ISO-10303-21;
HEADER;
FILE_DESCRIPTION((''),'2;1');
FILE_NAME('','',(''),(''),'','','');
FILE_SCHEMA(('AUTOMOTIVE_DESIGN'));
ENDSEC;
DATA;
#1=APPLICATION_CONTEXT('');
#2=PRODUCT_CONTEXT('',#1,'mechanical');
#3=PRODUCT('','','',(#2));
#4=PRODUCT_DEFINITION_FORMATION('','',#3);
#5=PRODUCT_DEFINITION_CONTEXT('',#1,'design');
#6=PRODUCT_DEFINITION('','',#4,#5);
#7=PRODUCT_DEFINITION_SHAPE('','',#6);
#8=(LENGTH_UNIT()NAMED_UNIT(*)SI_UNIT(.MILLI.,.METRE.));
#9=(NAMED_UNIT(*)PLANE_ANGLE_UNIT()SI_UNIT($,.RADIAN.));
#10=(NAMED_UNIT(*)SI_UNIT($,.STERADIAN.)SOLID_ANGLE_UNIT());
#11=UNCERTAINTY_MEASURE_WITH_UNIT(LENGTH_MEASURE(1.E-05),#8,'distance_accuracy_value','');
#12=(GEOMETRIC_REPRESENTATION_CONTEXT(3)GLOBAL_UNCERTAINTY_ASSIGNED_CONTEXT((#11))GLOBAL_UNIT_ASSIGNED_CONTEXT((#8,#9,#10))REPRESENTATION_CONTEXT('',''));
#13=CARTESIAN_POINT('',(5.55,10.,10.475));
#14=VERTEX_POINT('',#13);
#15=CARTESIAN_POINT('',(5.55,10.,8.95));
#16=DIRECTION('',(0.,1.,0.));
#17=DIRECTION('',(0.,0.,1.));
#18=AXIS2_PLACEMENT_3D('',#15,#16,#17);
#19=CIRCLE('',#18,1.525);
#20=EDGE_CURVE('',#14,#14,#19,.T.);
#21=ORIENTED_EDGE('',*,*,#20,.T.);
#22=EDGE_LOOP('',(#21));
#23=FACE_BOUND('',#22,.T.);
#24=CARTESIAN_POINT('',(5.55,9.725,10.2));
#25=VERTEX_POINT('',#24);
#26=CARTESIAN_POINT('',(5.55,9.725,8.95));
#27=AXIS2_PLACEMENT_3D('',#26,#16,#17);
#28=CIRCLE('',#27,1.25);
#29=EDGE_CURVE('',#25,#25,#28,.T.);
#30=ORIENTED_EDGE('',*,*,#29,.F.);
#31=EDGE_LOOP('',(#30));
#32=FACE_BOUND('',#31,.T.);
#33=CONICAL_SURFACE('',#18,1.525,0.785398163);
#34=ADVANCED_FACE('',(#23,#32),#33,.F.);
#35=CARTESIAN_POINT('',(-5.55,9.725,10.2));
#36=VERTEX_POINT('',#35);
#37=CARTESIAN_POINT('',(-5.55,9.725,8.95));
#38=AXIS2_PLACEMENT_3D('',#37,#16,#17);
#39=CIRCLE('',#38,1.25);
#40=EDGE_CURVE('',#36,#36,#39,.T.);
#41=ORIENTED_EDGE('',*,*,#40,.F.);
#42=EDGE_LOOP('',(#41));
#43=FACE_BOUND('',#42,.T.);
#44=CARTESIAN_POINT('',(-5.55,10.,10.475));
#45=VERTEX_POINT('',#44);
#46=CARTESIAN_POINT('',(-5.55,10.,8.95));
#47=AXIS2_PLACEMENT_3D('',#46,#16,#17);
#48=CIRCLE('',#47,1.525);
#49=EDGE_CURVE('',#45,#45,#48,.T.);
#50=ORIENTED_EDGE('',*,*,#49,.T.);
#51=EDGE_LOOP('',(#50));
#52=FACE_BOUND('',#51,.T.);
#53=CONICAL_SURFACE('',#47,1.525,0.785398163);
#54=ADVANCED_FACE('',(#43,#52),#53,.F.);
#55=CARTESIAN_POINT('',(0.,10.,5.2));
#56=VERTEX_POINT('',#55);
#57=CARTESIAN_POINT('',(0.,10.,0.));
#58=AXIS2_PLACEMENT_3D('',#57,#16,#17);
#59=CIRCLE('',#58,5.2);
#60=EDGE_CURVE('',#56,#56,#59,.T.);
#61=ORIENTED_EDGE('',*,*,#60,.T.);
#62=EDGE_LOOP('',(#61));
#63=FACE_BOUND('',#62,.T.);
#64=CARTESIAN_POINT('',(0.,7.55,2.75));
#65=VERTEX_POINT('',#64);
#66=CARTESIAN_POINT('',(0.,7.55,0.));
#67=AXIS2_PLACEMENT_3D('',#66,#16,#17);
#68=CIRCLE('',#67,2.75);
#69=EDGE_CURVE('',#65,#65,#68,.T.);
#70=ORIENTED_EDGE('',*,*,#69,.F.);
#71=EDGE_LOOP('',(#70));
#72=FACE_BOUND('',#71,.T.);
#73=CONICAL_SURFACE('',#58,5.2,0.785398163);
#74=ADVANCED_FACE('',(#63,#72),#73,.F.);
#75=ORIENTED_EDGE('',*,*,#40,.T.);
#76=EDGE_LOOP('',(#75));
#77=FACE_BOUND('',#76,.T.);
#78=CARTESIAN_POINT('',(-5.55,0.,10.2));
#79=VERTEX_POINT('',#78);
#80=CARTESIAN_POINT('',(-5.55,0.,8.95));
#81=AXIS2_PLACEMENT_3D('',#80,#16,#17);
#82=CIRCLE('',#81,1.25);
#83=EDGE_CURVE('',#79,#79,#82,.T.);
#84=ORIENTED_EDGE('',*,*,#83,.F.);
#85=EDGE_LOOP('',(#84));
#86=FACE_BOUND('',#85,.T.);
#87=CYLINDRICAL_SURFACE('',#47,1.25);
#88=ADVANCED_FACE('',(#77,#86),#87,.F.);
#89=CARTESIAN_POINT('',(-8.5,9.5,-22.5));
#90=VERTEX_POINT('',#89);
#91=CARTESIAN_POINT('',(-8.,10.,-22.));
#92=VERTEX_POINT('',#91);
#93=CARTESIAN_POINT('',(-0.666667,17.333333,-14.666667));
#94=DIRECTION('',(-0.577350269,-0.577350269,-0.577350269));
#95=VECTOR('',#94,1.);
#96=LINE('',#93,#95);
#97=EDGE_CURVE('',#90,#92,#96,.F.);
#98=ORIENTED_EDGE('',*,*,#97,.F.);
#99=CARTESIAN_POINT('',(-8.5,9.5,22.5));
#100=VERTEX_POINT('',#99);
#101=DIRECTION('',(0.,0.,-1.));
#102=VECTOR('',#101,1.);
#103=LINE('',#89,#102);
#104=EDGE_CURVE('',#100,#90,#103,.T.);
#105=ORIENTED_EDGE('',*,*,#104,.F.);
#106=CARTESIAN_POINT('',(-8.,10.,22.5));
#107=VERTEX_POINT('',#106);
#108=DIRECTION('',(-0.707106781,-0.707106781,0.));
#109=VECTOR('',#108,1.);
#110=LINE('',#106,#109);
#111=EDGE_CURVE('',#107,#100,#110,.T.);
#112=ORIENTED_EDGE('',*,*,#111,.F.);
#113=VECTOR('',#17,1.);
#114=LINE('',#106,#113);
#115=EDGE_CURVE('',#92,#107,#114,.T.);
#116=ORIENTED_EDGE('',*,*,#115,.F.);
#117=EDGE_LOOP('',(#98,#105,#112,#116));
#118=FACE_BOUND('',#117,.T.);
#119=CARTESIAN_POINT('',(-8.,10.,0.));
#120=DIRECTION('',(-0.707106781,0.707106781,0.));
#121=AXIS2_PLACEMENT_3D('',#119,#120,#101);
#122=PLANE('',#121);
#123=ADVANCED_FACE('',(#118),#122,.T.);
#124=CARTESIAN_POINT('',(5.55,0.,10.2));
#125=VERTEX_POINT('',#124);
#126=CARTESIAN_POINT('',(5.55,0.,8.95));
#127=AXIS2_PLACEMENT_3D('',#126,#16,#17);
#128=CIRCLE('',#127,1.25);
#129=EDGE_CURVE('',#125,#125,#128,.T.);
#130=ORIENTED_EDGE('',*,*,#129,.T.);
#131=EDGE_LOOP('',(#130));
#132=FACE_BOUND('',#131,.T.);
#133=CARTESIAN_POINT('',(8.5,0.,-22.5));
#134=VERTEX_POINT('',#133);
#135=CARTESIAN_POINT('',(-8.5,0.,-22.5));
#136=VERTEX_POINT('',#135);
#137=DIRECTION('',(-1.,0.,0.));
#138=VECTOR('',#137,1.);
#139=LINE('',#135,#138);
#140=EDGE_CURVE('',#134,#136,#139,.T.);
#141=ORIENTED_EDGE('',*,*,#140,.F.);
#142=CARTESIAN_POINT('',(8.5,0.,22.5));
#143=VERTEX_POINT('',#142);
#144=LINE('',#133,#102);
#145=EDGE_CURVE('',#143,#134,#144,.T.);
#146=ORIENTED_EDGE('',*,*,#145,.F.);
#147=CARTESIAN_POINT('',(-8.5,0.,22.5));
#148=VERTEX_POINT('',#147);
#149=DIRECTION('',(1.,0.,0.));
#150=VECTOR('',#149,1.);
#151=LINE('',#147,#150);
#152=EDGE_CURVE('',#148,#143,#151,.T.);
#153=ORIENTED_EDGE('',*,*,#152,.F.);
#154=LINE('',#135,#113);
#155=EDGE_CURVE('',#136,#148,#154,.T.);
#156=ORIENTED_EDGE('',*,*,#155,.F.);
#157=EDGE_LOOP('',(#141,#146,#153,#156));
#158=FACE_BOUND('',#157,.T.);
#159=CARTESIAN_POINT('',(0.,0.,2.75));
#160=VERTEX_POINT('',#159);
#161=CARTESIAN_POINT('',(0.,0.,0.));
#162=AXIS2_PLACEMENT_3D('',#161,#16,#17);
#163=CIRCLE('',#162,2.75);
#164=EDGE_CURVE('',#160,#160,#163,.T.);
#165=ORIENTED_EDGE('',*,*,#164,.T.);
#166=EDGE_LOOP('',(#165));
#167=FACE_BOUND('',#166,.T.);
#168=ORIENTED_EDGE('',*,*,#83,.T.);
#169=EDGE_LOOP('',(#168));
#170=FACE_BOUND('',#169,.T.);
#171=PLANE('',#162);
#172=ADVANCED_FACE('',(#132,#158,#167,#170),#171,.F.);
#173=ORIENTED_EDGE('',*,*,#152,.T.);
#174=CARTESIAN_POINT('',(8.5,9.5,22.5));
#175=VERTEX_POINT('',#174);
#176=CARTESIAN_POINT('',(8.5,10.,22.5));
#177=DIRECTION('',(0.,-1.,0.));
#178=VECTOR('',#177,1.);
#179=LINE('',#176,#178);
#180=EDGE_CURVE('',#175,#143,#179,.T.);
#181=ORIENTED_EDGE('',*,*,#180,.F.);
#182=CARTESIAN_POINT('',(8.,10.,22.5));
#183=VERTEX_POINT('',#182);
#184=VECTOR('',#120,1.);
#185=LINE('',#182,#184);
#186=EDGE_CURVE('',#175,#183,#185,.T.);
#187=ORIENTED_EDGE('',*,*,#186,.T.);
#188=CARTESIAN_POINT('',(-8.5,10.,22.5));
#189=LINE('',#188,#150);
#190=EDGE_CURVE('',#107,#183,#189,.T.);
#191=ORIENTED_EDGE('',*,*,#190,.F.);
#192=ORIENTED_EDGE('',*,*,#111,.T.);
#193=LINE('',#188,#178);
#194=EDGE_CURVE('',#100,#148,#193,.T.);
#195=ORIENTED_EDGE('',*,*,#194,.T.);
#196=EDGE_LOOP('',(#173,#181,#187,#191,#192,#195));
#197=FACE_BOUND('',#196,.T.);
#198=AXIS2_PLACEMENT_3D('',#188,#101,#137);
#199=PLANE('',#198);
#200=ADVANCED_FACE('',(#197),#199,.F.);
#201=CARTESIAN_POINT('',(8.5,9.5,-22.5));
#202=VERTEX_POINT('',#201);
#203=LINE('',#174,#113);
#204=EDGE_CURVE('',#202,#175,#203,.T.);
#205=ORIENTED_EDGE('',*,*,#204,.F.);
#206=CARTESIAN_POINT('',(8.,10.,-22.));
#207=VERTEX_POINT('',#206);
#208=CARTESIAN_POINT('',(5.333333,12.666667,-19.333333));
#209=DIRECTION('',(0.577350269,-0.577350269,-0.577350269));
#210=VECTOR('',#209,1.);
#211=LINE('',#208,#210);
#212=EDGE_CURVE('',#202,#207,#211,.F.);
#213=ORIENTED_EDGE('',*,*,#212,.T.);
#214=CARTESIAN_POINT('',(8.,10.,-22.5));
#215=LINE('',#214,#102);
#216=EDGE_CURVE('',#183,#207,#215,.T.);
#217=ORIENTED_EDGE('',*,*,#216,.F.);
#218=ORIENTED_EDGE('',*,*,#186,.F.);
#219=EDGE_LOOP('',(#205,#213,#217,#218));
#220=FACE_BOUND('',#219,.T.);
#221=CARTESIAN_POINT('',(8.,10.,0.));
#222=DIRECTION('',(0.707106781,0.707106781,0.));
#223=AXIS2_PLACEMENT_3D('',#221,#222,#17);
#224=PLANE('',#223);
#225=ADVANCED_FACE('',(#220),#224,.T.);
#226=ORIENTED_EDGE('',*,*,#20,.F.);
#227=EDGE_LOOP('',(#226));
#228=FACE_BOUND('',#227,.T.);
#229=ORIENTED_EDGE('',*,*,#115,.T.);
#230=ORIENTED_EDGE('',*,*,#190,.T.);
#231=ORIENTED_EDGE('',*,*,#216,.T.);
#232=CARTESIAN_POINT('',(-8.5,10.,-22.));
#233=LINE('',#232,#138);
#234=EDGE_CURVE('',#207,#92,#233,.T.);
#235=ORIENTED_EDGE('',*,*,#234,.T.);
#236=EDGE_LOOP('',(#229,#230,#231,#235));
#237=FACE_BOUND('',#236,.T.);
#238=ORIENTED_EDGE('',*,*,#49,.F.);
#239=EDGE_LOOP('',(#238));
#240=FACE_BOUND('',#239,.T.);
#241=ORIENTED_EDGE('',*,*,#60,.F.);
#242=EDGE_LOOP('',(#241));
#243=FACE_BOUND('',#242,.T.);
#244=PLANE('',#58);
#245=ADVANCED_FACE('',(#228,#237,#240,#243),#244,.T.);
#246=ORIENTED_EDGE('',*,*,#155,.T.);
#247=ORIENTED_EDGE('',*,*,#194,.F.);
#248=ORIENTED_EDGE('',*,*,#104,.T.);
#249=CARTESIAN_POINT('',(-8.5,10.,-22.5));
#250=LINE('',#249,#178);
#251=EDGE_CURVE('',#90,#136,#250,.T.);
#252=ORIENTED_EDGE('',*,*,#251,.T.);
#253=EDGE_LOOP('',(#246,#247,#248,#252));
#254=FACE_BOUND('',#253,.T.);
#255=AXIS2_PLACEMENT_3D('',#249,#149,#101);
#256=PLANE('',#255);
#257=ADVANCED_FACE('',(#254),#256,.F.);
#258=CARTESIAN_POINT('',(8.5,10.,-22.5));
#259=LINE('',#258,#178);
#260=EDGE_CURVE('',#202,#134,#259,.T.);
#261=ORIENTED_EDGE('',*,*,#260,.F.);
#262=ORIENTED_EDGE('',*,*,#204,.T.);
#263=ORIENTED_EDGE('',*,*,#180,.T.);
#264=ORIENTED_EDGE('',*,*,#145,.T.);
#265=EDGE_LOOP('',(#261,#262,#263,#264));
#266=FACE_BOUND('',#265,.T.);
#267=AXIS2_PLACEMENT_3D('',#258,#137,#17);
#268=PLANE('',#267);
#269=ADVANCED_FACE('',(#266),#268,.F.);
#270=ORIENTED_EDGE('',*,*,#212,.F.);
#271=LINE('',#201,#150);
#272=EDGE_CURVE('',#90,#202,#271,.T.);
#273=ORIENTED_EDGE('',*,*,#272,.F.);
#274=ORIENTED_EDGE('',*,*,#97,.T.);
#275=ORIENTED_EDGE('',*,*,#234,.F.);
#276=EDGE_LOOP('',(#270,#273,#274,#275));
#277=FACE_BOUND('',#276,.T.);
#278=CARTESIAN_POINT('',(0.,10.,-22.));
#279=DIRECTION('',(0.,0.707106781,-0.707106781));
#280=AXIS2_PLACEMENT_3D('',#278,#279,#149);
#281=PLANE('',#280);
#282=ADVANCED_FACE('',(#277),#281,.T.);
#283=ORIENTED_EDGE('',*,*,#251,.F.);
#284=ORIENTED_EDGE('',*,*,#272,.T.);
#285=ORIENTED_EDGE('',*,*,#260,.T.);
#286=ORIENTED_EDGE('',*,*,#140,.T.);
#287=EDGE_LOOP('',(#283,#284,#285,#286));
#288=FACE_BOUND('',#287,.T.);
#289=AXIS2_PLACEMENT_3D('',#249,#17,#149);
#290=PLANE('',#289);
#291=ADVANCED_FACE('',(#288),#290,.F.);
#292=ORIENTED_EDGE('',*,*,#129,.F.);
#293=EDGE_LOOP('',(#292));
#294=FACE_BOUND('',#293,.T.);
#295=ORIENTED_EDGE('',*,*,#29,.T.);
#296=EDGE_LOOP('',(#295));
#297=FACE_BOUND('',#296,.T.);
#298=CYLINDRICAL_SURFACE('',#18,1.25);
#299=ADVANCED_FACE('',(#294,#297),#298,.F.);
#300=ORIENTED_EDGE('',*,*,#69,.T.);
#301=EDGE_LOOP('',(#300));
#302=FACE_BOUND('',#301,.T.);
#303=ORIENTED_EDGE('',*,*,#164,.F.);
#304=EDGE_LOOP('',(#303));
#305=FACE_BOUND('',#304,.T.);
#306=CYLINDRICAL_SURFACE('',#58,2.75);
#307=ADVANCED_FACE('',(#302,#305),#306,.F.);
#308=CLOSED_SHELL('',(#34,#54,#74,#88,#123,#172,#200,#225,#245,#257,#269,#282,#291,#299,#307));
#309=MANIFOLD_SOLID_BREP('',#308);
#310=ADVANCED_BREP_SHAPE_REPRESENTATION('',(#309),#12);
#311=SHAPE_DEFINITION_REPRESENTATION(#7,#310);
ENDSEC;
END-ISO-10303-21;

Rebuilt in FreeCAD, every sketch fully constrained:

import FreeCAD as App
import Part
import Sketcher

V = App.Vector


def edges_at(feature, points):
    """Names of the edges that pass closest to the given points."""
    edges = feature.Shape.Edges
    near = lambda p: min(range(len(edges)), key=lambda i: edges[i].distToShape(Part.Vertex(*p))[0])
    return sorted({f"Edge{near(p) + 1}" for p in points})

doc = App.newDocument("Part")
body = doc.addObject("PartDesign::Body", "Body")

sketch1 = body.newObject("Sketcher::SketchObject", "Sketch")
sketch1.AttachmentSupport = (doc.getObject("XZ_Plane"), [""])
sketch1.MapMode = "FlatFace"
sketch1.addGeometry([
    Part.LineSegment(V(-8.5, -22.5, 0), V(-8.5, 22.5, 0)),
    Part.LineSegment(V(-8.5, 22.5, 0), V(8.5, 22.5, 0)),
    Part.LineSegment(V(8.5, 22.5, 0), V(8.5, -22.5, 0)),
    Part.LineSegment(V(8.5, -22.5, 0), V(-8.5, -22.5, 0)),
], False)
sketch1.addConstraint([
    Sketcher.Constraint("Coincident", 0, 2, 1, 1),
    Sketcher.Constraint("Coincident", 1, 2, 2, 1),
    Sketcher.Constraint("Coincident", 2, 2, 3, 1),
    Sketcher.Constraint("Coincident", 3, 2, 0, 1),
    Sketcher.Constraint("Vertical", 0),
    Sketcher.Constraint("Horizontal", 1),
    Sketcher.Constraint("Vertical", 2),
    Sketcher.Constraint("Horizontal", 3),
    Sketcher.Constraint("Symmetric", 0, 2, 2, 2, -1, 1),
    Sketcher.Constraint("DistanceX", 1, 1, 1, 2, 17.0),
    Sketcher.Constraint("DistanceY", 0, 1, 0, 2, 45.0),
])
pad1 = body.newObject("PartDesign::Pad", "Pad")
pad1.Profile = sketch1
pad1.Length = 10
pad1.Reversed = True

sketch2 = body.newObject("Sketcher::SketchObject", "Sketch001")
sketch2.AttachmentSupport = (doc.getObject("XZ_Plane"), [""])
sketch2.MapMode = "FlatFace"
sketch2.AttachmentOffset = App.Placement(V(0, 0, -10), App.Rotation())
sketch2.addGeometry(Part.Circle(V(0, 0, 0), V(0, 0, 1), 2.75), False)
sketch2.addConstraint([
    Sketcher.Constraint("Coincident", 0, 3, -1, 1),
    Sketcher.Constraint("Diameter", 0, 5.5),
])
doc.recompute()
hole = body.newObject("PartDesign::Hole", "Hole")
hole.Profile = sketch2
hole.ThreadType = "None"
hole.Diameter = 5.5
hole.DepthType = "ThroughAll"
hole.HoleCutType = "Countersink"
hole.HoleCutDiameter = 10.4
hole.HoleCutCountersinkAngle = 90
hole.Reversed = True

sketch3 = body.newObject("Sketcher::SketchObject", "Sketch002")
sketch3.AttachmentSupport = (doc.getObject("XZ_Plane"), [""])
sketch3.MapMode = "FlatFace"
sketch3.AttachmentOffset = App.Placement(V(0, 0, -10), App.Rotation())
sketch3.addGeometry([
    Part.Circle(V(-5.55, 8.95, 0), V(0, 0, 1), 1.25),
    Part.Circle(V(5.55, 8.95, 0), V(0, 0, 1), 1.25),
], False)
sketch3.addConstraint([
    Sketcher.Constraint("Equal", 0, 1),
    Sketcher.Constraint("Symmetric", 0, 3, 1, 3, -2),
    Sketcher.Constraint("Diameter", 0, 2.5),
    Sketcher.Constraint("DistanceX", 0, 3, 1, 3, 11.1),
    Sketcher.Constraint("DistanceY", -1, 1, 0, 3, 8.95),
])
doc.recompute()
hole2 = body.newObject("PartDesign::Hole", "Hole001")
hole2.Profile = sketch3
hole2.ThreadType = "None"
hole2.Diameter = 2.5
hole2.DepthType = "ThroughAll"
hole2.HoleCutType = "Countersink"
hole2.HoleCutDiameter = 3.05
hole2.HoleCutCountersinkAngle = 90
hole2.Reversed = True
doc.recompute()

chamfer = body.newObject("PartDesign::Chamfer", "Chamfer")
chamfer.Base = (hole2, edges_at(hole2, [(-8.5, 10, 0), (8.5, 10, 0), (0, 10, -22.5)]))
chamfer.Size = 0.5

doc.recompute()
